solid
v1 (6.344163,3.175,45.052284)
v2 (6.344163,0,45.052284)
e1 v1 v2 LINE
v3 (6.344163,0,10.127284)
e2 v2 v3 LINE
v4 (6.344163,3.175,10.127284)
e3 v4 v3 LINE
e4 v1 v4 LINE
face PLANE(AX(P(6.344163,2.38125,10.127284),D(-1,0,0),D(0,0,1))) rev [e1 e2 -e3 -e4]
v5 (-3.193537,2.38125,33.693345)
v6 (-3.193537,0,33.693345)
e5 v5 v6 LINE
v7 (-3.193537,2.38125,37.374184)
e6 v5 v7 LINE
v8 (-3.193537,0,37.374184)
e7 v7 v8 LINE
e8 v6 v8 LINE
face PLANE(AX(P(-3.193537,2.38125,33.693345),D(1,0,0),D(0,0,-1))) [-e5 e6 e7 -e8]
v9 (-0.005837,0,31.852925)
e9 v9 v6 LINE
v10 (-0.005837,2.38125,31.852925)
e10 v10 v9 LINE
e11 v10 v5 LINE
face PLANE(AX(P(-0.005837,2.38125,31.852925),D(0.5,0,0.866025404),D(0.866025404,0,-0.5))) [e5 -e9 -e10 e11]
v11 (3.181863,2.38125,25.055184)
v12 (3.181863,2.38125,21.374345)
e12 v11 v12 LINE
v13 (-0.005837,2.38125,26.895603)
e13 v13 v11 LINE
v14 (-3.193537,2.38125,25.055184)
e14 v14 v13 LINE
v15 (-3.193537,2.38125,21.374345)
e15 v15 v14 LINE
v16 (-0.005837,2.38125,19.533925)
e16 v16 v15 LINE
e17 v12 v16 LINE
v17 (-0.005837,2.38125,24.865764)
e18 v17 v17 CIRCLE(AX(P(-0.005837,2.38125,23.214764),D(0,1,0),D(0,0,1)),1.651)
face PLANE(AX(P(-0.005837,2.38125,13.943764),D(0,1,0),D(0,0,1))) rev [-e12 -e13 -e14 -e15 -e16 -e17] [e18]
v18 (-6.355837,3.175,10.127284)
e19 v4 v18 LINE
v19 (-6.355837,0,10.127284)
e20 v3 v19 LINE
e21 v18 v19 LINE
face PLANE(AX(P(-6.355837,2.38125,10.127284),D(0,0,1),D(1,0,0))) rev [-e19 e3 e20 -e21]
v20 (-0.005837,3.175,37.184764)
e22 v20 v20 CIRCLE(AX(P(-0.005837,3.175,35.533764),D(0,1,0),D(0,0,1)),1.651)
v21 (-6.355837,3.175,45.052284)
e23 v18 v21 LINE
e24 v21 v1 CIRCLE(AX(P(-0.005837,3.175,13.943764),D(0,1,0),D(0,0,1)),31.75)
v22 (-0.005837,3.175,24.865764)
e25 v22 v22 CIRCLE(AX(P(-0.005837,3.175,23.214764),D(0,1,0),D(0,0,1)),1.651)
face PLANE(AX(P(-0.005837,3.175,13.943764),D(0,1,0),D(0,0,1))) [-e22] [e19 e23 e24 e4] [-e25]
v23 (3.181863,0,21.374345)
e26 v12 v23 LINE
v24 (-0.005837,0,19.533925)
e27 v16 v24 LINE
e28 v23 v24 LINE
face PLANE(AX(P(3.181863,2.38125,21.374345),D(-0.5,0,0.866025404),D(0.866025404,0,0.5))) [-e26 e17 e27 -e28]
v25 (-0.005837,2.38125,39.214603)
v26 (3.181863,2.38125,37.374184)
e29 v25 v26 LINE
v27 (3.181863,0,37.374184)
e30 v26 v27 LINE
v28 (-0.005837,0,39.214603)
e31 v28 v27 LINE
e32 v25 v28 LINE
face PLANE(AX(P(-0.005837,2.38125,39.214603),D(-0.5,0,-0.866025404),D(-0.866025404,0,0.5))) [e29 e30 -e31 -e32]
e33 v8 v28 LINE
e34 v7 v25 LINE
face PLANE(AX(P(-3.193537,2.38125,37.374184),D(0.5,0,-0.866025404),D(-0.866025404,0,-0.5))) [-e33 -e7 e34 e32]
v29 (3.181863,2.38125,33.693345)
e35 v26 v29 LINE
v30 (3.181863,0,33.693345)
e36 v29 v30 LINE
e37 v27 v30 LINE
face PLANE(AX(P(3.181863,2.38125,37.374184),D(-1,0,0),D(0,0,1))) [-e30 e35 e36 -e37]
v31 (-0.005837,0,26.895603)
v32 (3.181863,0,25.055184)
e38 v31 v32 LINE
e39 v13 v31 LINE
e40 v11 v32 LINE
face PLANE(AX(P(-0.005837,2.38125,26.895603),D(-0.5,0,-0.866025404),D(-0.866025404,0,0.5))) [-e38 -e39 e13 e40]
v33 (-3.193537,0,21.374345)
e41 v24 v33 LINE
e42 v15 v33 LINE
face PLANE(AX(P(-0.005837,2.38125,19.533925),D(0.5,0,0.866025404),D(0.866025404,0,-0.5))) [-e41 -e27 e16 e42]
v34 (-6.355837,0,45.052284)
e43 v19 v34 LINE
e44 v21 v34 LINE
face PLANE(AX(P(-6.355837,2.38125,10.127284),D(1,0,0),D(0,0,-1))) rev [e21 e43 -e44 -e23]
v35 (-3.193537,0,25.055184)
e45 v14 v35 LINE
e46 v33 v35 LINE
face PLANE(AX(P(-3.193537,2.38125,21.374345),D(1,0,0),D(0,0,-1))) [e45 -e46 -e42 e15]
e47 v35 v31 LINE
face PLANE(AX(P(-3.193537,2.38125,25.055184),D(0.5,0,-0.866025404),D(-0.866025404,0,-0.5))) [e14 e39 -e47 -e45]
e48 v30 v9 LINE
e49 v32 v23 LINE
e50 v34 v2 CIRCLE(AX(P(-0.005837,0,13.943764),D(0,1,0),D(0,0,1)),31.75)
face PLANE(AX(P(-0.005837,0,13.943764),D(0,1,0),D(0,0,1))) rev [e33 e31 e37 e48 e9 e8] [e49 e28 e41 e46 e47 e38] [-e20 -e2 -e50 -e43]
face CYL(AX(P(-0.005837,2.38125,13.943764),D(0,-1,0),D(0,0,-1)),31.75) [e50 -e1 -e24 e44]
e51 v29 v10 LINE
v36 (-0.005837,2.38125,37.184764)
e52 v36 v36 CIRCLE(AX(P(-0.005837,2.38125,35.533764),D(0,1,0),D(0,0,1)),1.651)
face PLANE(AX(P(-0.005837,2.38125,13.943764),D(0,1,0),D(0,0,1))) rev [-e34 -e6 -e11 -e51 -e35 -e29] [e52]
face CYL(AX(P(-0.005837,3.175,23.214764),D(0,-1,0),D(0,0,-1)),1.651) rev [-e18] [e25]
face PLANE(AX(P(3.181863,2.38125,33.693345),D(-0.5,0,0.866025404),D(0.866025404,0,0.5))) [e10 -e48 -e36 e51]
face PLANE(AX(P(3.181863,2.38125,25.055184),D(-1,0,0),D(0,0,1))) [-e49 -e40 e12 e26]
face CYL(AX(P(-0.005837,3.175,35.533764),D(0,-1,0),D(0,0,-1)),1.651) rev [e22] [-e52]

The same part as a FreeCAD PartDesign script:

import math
import FreeCAD as App
import Part
import Sketcher
Q = App.Units.Quantity

doc = App.newDocument("Part")
body = doc.addObject("PartDesign::Body", "Body")

# Sketch on XZ plane
sketch1 = body.newObject("Sketcher::SketchObject", "Sketch")
sketch1.AttachmentSupport = (doc.getObject("XZ_Plane"), [""])
sketch1.MapMode = "FlatFace"
sketch1.addGeometry(Part.LineSegment(App.Vector(6.3, 10.1, 0), App.Vector(-6.4, 10.1, 0)), False)
sketch1.addGeometry(Part.LineSegment(App.Vector(-6.4, 10.1, 0), App.Vector(-6.4, 45.1, 0)), False)
sketch1.addGeometry(Part.ArcOfCircle(Part.Circle(App.Vector(0, 13.9, 0), App.Vector(0, 0, 1), 31.7), math.radians(78), math.radians(102)), False)
sketch1.addGeometry(Part.LineSegment(App.Vector(6.3, 45.1, 0), App.Vector(6.3, 10.1, 0)), False)
sketch1.addGeometry(Part.LineSegment(App.Vector(3.2, 37.4, 0), App.Vector(0, 39.2, 0)), False)
sketch1.addGeometry(Part.LineSegment(App.Vector(0, 39.2, 0), App.Vector(-3.2, 37.4, 0)), False)
sketch1.addGeometry(Part.LineSegment(App.Vector(-3.2, 37.4, 0), App.Vector(-3.2, 33.7, 0)), False)
sketch1.addGeometry(Part.LineSegment(App.Vector(-3.2, 33.7, 0), App.Vector(0, 31.9, 0)), False)
sketch1.addGeometry(Part.LineSegment(App.Vector(0, 31.9, 0), App.Vector(3.2, 33.7, 0)), False)
sketch1.addGeometry(Part.LineSegment(App.Vector(3.2, 33.7, 0), App.Vector(3.2, 37.4, 0)), False)
sketch1.addGeometry(Part.LineSegment(App.Vector(3.2, 25.1, 0), App.Vector(0, 26.9, 0)), False)
sketch1.addGeometry(Part.LineSegment(App.Vector(0, 26.9, 0), App.Vector(-3.2, 25.1, 0)), False)
sketch1.addGeometry(Part.LineSegment(App.Vector(-3.2, 25.1, 0), App.Vector(-3.2, 21.4, 0)), False)
sketch1.addGeometry(Part.LineSegment(App.Vector(-3.2, 21.4, 0), App.Vector(0, 19.5, 0)), False)
sketch1.addGeometry(Part.LineSegment(App.Vector(0, 19.5, 0), App.Vector(3.2, 21.4, 0)), False)
sketch1.addGeometry(Part.LineSegment(App.Vector(3.2, 21.4, 0), App.Vector(3.2, 25.1, 0)), False)
sketch1.addConstraint(Sketcher.Constraint("Coincident", 0, 2, 1, 1))
sketch1.addConstraint(Sketcher.Constraint("Coincident", 1, 2, 2, 2))
sketch1.addConstraint(Sketcher.Constraint("Coincident", 2, 1, 3, 1))
sketch1.addConstraint(Sketcher.Constraint("Coincident", 3, 2, 0, 1))
sketch1.addConstraint(Sketcher.Constraint("Coincident", 4, 2, 5, 1))
sketch1.addConstraint(Sketcher.Constraint("Coincident", 5, 2, 6, 1))
sketch1.addConstraint(Sketcher.Constraint("Coincident", 6, 2, 7, 1))
sketch1.addConstraint(Sketcher.Constraint("Coincident", 7, 2, 8, 1))
sketch1.addConstraint(Sketcher.Constraint("Coincident", 8, 2, 9, 1))
sketch1.addConstraint(Sketcher.Constraint("Coincident", 9, 2, 4, 1))
sketch1.addConstraint(Sketcher.Constraint("Coincident", 10, 2, 11, 1))
sketch1.addConstraint(Sketcher.Constraint("Coincident", 11, 2, 12, 1))
sketch1.addConstraint(Sketcher.Constraint("Coincident", 12, 2, 13, 1))
sketch1.addConstraint(Sketcher.Constraint("Coincident", 13, 2, 14, 1))
sketch1.addConstraint(Sketcher.Constraint("Coincident", 14, 2, 15, 1))
sketch1.addConstraint(Sketcher.Constraint("Coincident", 15, 2, 10, 1))
sketch1.addConstraint(Sketcher.Constraint("Horizontal", 0))
sketch1.addConstraint(Sketcher.Constraint("Vertical", 1))
sketch1.addConstraint(Sketcher.Constraint("Vertical", 3))
sketch1.addConstraint(Sketcher.Constraint("Vertical", 6))
sketch1.addConstraint(Sketcher.Constraint("Vertical", 9))
sketch1.addConstraint(Sketcher.Constraint("Vertical", 12))
sketch1.addConstraint(Sketcher.Constraint("Vertical", 15))
sketch1.addConstraint(Sketcher.Constraint("Parallel", 4, 7))
sketch1.addConstraint(Sketcher.Constraint("Parallel", 5, 8))
sketch1.addConstraint(Sketcher.Constraint("Parallel", 7, 10))
sketch1.addConstraint(Sketcher.Constraint("Parallel", 8, 11))
sketch1.addConstraint(Sketcher.Constraint("Parallel", 10, 13))
sketch1.addConstraint(Sketcher.Constraint("Parallel", 11, 14))
sketch1.addConstraint(Sketcher.Constraint("Horizontal", 1, 2, 2, 1))
sketch1.addConstraint(Sketcher.Constraint("Horizontal", 6, 2, 8, 2))
sketch1.addConstraint(Sketcher.Constraint("Horizontal", 5, 2, 9, 2))
sketch1.addConstraint(Sketcher.Constraint("Horizontal", 12, 2, 14, 2))
sketch1.addConstraint(Sketcher.Constraint("Horizontal", 11, 2, 15, 2))
sketch1.addConstraint(Sketcher.Constraint("Vertical", 2, 3, 4, 2))
sketch1.addConstraint(Sketcher.Constraint("Vertical", 4, 2, 7, 2))
sketch1.addConstraint(Sketcher.Constraint("Vertical", 7, 2, 10, 2))
sketch1.addConstraint(Sketcher.Constraint("Vertical", 6, 2, 11, 2))
sketch1.addConstraint(Sketcher.Constraint("Equal", 9, 12))
sketch1.addConstraint(Sketcher.Constraint("Radius", 2, Q("1.25 in")))
sketch1.addConstraint(Sketcher.Constraint("DistanceX", 0, 2, 0, 1, Q("0.5 in")))
sketch1.addConstraint(Sketcher.Constraint("Angle", 4, Q("150 deg")))
sketch1.addConstraint(Sketcher.Constraint("DistanceY", 1, 1, 1, 2, Q("1.375 in")))
sketch1.addConstraint(Sketcher.Constraint("DistanceX", 6, 2, 8, 2, Q("0.251 in")))
sketch1.addConstraint(Sketcher.Constraint("DistanceY", 6, 2, 6, 1, 3.680839))
sketch1.addConstraint(Sketcher.Constraint("DistanceY", 5, 2, 1, 2, 7.6781))
sketch1.addConstraint(Sketcher.Constraint("DistanceY", 10, 2, 6, 2, 6.797742))
sketch1.addConstraint(Sketcher.Constraint("DistanceX", 2, 3, -1, 1, 0.005837))
sketch1.addConstraint(Sketcher.Constraint("DistanceY", -1, 1, 2, 3, 13.943764))
pad1 = body.newObject("PartDesign::Pad", "Pad")
pad1.Profile = sketch1
pad1.Length = Q("0.09375 in")
pad1.Reversed = True

# Sketch on XZ plane
sketch2 = body.newObject("Sketcher::SketchObject", "Sketch001")
sketch2.AttachmentSupport = (doc.getObject("XZ_Plane"), [""])
sketch2.MapMode = "FlatFace"
sketch2.AttachmentOffset = App.Placement(App.Vector(0, 0, -0.09375 * 25.4), App.Rotation())
sketch2.addGeometry(Part.LineSegment(App.Vector(6.3, 45.1, 0), App.Vector(6.3, 10.1, 0)), False)
sketch2.addGeometry(Part.LineSegment(App.Vector(6.3, 10.1, 0), App.Vector(-6.4, 10.1, 0)), False)
sketch2.addGeometry(Part.LineSegment(App.Vector(-6.4, 10.1, 0), App.Vector(-6.4, 45.1, 0)), False)
sketch2.addGeometry(Part.ArcOfCircle(Part.Circle(App.Vector(0, 13.9, 0), App.Vector(0, 0, 1), 31.7), math.radians(78), math.radians(102)), False)
sketch2.addGeometry(Part.Circle(App.Vector(0, 35.5, 0), App.Vector(0, 0, 1), 1.7), False)
sketch2.addGeometry(Part.Circle(App.Vector(0, 23.2, 0), App.Vector(0, 0, 1), 1.7), False)
sketch2.addConstraint(Sketcher.Constraint("Coincident", 0, 2, 1, 1))
sketch2.addConstraint(Sketcher.Constraint("Coincident", 1, 2, 2, 1))
sketch2.addConstraint(Sketcher.Constraint("Coincident", 2, 2, 3, 2))
sketch2.addConstraint(Sketcher.Constraint("Coincident", 3, 1, 0, 1))
sketch2.addConstraint(Sketcher.Constraint("Vertical", 0))
sketch2.addConstraint(Sketcher.Constraint("Horizontal", 1))
sketch2.addConstraint(Sketcher.Constraint("Vertical", 2))
sketch2.addConstraint(Sketcher.Constraint("Equal", 4, 5))
sketch2.addConstraint(Sketcher.Constraint("Horizontal", 2, 2, 3, 1))
sketch2.addConstraint(Sketcher.Constraint("Vertical", 3, 3, 4, 3))
sketch2.addConstraint(Sketcher.Constraint("Vertical", 4, 3, 5, 3))
sketch2.addConstraint(Sketcher.Constraint("Diameter", 4, Q("0.13 in")))
sketch2.addConstraint(Sketcher.Constraint("Radius", 3, Q("1.25 in")))
sketch2.addConstraint(Sketcher.Constraint("DistanceX", 1, 2, 1, 1, Q("0.5 in")))
sketch2.addConstraint(Sketcher.Constraint("DistanceY", 0, 2, 0, 1, Q("1.375 in")))
sketch2.addConstraint(Sketcher.Constraint("DistanceY", 3, 3, 4, 3, Q("0.85 in")))
sketch2.addConstraint(Sketcher.Constraint("DistanceY", 3, 3, 5, 3, Q("0.365 in")))
sketch2.addConstraint(Sketcher.Constraint("DistanceX", 3, 3, -1, 1, 0.005837))
sketch2.addConstraint(Sketcher.Constraint("DistanceY", -1, 1, 3, 3, 13.943764))
pad2 = body.newObject("PartDesign::Pad", "Pad001")
pad2.Profile = sketch2
pad2.Length = Q("0.03125 in")
pad2.Reversed = True

doc.recompute()
